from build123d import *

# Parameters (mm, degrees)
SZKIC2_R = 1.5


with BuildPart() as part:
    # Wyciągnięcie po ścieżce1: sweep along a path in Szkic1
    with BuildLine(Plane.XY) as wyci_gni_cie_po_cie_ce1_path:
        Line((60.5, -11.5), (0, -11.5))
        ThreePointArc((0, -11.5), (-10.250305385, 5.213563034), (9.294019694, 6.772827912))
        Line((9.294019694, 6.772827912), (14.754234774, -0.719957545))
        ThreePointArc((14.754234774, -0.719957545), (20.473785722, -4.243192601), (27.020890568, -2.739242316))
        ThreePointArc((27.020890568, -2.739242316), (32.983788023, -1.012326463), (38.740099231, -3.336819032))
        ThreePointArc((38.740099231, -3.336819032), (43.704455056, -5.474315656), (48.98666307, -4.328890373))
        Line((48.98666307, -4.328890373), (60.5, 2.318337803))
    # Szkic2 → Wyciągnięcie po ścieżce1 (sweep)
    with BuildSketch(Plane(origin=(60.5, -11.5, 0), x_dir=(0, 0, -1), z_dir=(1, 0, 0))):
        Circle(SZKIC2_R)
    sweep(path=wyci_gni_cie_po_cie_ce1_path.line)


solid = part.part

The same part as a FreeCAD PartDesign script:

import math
import FreeCAD as App
import Part
import Sketcher
Q = App.Units.Quantity

doc = App.newDocument("Part")
body = doc.addObject("PartDesign::Body", "Body")

sketch1 = doc.addObject("Sketcher::SketchObject", "Sketch")
body.addObject(sketch1)
sketch1.AttachmentSupport = (doc.YZ_Plane, [""])
sketch1.MapMode = "FlatFace"
sketch1.AttachmentOffset = App.Placement(App.Vector(0, 0, 60.5), App.Rotation())
sketch1.addGeometry(Part.Circle(App.Vector(-11.5, 0, 0), App.Vector(0, 0, 1), 1.5), False)
sketch1.addConstraint([
    Sketcher.Constraint("PointOnObject", 0, 3, -1),
    Sketcher.Constraint("Diameter", 0, 3.0),
    Sketcher.Constraint("DistanceX", 0, 3, -1, 1, 11.5),
])

sketch2 = doc.addObject("Sketcher::SketchObject", "Sketch001")
body.addObject(sketch2)
sketch2.AttachmentSupport = (doc.XY_Plane, [""])
sketch2.MapMode = "FlatFace"
sketch2.addGeometry([
    Part.LineSegment(App.Vector(60, -12, 0), App.Vector(0, -12, 0)),
    Part.ArcOfCircle(Part.Circle(App.Vector(0, 0, 0), App.Vector(0, 0, 1), 12), math.radians(36), math.radians(270)),
    Part.LineSegment(App.Vector(9, 7, 0), App.Vector(15, -1, 0)),
    Part.ArcOfCircle(Part.Circle(App.Vector(22, 4, 0), App.Vector(0, 0, 1), 9), math.radians(-144), math.radians(-55)),
    Part.ArcOfCircle(Part.Circle(App.Vector(32, -10, 0), App.Vector(0, 0, 1), 10), math.radians(49), math.radians(125)),
    Part.ArcOfCircle(Part.Circle(App.Vector(45, 3, 0), App.Vector(0, 0, 1), 9), math.radians(-131), math.radians(-60)),
    Part.LineSegment(App.Vector(49, -4, 0), App.Vector(60, 2, 0)),
], False)
sketch2.addConstraint([
    Sketcher.Constraint("Tangent", 0, 2, 1, 2),
    Sketcher.Constraint("Tangent", 1, 1, 2, 1),
    Sketcher.Constraint("Tangent", 2, 2, 3, 1),
    Sketcher.Constraint("Tangent", 3, 2, 4, 2),
    Sketcher.Constraint("Tangent", 4, 1, 5, 1),
    Sketcher.Constraint("Tangent", 5, 2, 6, 1),
    Sketcher.Constraint("Horizontal", 0),
    Sketcher.Constraint("Coincident", 1, 3, -1, 1),
    Sketcher.Constraint("Equal", 3, 5),
    Sketcher.Constraint("Vertical", 0, 1, 6, 2),
    Sketcher.Constraint("Radius", 1, 11.5),
    Sketcher.Constraint("Radius", 4, 9.5),
    Sketcher.Constraint("Angle", 6, Q("30 deg")),
    Sketcher.Constraint("DistanceX", 0, 2, 0, 1, 60.5),
    Sketcher.Constraint("DistanceX", 4, 3, 0, 1, 28.0),
    Sketcher.Constraint("DistanceY", 0, 1, 4, 3, 1.0),
    Sketcher.Constraint("Radius", 3, 8.857277),
    Sketcher.Constraint("DistanceX", -1, 1, 4, 1, 38.740099),
    Sketcher.Constraint("DistanceX", -1, 1, 3, 3, 21.91247),
])
doc.recompute()

additivepipe = doc.addObject("PartDesign::AdditivePipe", "AdditivePipe")
body.addObject(additivepipe)
additivepipe.Profile = sketch1
additivepipe.Spine = (sketch2, ["Edge1", "Edge2", "Edge3", "Edge4", "Edge5", "Edge6", "Edge7"])

doc.recompute()
